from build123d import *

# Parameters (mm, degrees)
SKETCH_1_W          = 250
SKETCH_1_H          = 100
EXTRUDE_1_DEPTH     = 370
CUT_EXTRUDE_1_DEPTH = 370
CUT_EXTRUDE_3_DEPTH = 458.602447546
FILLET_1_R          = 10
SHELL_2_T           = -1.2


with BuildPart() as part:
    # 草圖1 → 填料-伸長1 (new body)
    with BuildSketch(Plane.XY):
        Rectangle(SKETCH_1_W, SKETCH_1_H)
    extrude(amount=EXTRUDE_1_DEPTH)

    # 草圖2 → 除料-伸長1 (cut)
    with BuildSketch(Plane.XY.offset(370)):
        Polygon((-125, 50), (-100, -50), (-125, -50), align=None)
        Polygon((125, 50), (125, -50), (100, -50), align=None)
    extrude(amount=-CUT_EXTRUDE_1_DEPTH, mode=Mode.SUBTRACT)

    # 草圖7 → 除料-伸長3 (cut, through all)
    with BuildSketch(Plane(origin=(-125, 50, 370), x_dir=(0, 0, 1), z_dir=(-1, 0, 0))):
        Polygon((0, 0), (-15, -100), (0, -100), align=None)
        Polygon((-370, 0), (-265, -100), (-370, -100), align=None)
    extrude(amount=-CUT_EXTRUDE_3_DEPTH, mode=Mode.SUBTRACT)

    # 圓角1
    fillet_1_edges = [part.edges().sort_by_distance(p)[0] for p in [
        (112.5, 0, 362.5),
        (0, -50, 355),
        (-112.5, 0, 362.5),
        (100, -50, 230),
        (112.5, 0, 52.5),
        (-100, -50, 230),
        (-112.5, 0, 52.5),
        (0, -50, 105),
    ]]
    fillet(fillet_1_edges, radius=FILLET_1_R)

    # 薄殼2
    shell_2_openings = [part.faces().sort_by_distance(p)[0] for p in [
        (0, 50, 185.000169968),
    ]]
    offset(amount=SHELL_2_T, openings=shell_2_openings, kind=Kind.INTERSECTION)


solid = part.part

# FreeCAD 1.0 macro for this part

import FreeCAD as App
import Part
import Sketcher
from FreeCAD import Vector


def edges_at(feature, points):
    """Names of the edges that pass closest to the given points."""
    edges = feature.Shape.Edges
    near = lambda p: min(range(len(edges)), key=lambda i: edges[i].distToShape(Part.Vertex(*p))[0])
    return sorted({f"Edge{near(p) + 1}" for p in points})


def faces_at(feature, points):
    """Names of the faces that lie closest to the given points."""
    faces = feature.Shape.Faces
    near = lambda p: min(range(len(faces)), key=lambda i: faces[i].distToShape(Part.Vertex(*p))[0])
    return sorted({f"Face{near(p) + 1}" for p in points})


def add_polygon(sketch, points):
    """Adds a closed chain of lines whose ends are joined by coincident constraints."""
    first, n = sketch.GeometryCount, len(points)
    for a, b in zip(points, points[1:] + points[:1]):
        sketch.addGeometry(Part.LineSegment(App.Vector(*a, 0), App.Vector(*b, 0)), False)
    for i in range(n):
        sketch.addConstraint(Sketcher.Constraint("Coincident", first + i, 2, first + (i + 1) % n, 1))

doc = App.newDocument("Part")
body = doc.addObject("PartDesign::Body", "Body")

# Sketch on XY plane
sketch1 = doc.addObject("Sketcher::SketchObject", "Sketch")
body.addObject(sketch1)
sketch1.AttachmentSupport = (doc.XY_Plane, [""])
sketch1.MapMode = "FlatFace"
add_polygon(sketch1, [(-125, 50), (-125, -50), (125, -50), (125, 50)])  # lines 0-3
sketch1.addConstraint([
    Sketcher.Constraint("Vertical", 0),
    Sketcher.Constraint("Horizontal", 1),
    Sketcher.Constraint("Vertical", 2),
    Sketcher.Constraint("Horizontal", 3),
    Sketcher.Constraint("Symmetric", 0, 2, 2, 2, -1, 1),
    Sketcher.Constraint("DistanceX", 1, 1, 1, 2, 250.0),
    Sketcher.Constraint("DistanceY", 0, 2, 0, 1, 100.0),
])
pad1 = doc.addObject("PartDesign::Pad", "Pad")
body.addObject(pad1)
pad1.Profile = sketch1
pad1.Length = 370

# Sketch on XY plane
sketch2 = doc.addObject("Sketcher::SketchObject", "Sketch001")
body.addObject(sketch2)
sketch2.AttachmentSupport = (doc.XY_Plane, [""])
sketch2.MapMode = "FlatFace"
sketch2.AttachmentOffset = App.Placement(Vector(0, 0, 370), App.Rotation())
add_polygon(sketch2, [(-100, -50), (-125, 50), (-125, -50)])  # lines 0-2
add_polygon(sketch2, [(125, -50), (125, 50), (100, -50)])  # lines 3-5
sketch2.addConstraint([
    Sketcher.Constraint("Vertical", 1),
    Sketcher.Constraint("Horizontal", 2),
    Sketcher.Constraint("Vertical", 3),
    Sketcher.Constraint("Horizontal", 5),
    Sketcher.Constraint("Symmetric", 1, 2, 3, 2, -1, 1),
    Sketcher.Constraint("Symmetric", 2, 2, 4, 2, -2),
    Sketcher.Constraint("Horizontal", 0, 2, 3, 2),
    Sketcher.Constraint("DistanceX", 2, 1, 2, 2, 25.0),
    Sketcher.Constraint("DistanceY", 1, 2, 1, 1, 100.0),
    Sketcher.Constraint("DistanceX", 0, 2, -1, 1, 125.0),
])
pocket1 = doc.addObject("PartDesign::Pocket", "Pocket")
body.addObject(pocket1)
pocket1.Profile = sketch2
pocket1.Length = 370

# Sketch on YZ plane
sketch3 = doc.addObject("Sketcher::SketchObject", "Sketch002")
body.addObject(sketch3)
sketch3.AttachmentSupport = (doc.YZ_Plane, [""])
sketch3.MapMode = "FlatFace"
sketch3.AttachmentOffset = App.Placement(Vector(0, 0, -125), App.Rotation())
add_polygon(sketch3, [(50, 370), (-50, 355), (-50, 370)])  # lines 0-2
add_polygon(sketch3, [(-50, 105), (50, 0), (-50, 0)])  # lines 3-5
sketch3.addConstraint([
    Sketcher.Constraint("Vertical", 1),
    Sketcher.Constraint("Horizontal", 2),
    Sketcher.Constraint("Horizontal", 4),
    Sketcher.Constraint("Vertical", 5),
    Sketcher.Constraint("Symmetric", 3, 2, 4, 2, -1, 1),
    Sketcher.Constraint("Vertical", 2, 2, 3, 2),
    Sketcher.Constraint("Vertical", 1, 2, 4, 2),
    Sketcher.Constraint("DistanceX", 2, 1, 2, 2, 100.0),
    Sketcher.Constraint("DistanceY", 1, 1, 1, 2, 15.0),
    Sketcher.Constraint("DistanceY", 5, 1, 5, 2, 105.0),
    Sketcher.Constraint("DistanceY", -1, 1, 0, 2, 355.0),
])
pocket2 = doc.addObject("PartDesign::Pocket", "Pocket001")
body.addObject(pocket2)
pocket2.Profile = sketch3
pocket2.Type = "ThroughAll"
pocket2.Reversed = True
doc.recompute()

fillet = doc.addObject("PartDesign::Fillet", "Fillet")
body.addObject(fillet)
fillet.Base = (pocket2, edges_at(pocket2, [
    (112.5, 0, 362.5),
    (0, -50, 355),
    (-112.5, 0, 362.5),
    (100, -50, 230),
    (112.5, 0, 52.5),
    (-100, -50, 230),
    (-112.5, 0, 52.5),
    (0, -50, 105),
]))
fillet.Radius = 10
doc.recompute()

thickness = doc.addObject("PartDesign::Thickness", "Thickness")
body.addObject(thickness)
thickness.Base = (fillet, faces_at(fillet, [(0, 50, 185)]))
thickness.Value = 1.2
thickness.Reversed = True
thickness.Join = "Intersection"

doc.recompute()
